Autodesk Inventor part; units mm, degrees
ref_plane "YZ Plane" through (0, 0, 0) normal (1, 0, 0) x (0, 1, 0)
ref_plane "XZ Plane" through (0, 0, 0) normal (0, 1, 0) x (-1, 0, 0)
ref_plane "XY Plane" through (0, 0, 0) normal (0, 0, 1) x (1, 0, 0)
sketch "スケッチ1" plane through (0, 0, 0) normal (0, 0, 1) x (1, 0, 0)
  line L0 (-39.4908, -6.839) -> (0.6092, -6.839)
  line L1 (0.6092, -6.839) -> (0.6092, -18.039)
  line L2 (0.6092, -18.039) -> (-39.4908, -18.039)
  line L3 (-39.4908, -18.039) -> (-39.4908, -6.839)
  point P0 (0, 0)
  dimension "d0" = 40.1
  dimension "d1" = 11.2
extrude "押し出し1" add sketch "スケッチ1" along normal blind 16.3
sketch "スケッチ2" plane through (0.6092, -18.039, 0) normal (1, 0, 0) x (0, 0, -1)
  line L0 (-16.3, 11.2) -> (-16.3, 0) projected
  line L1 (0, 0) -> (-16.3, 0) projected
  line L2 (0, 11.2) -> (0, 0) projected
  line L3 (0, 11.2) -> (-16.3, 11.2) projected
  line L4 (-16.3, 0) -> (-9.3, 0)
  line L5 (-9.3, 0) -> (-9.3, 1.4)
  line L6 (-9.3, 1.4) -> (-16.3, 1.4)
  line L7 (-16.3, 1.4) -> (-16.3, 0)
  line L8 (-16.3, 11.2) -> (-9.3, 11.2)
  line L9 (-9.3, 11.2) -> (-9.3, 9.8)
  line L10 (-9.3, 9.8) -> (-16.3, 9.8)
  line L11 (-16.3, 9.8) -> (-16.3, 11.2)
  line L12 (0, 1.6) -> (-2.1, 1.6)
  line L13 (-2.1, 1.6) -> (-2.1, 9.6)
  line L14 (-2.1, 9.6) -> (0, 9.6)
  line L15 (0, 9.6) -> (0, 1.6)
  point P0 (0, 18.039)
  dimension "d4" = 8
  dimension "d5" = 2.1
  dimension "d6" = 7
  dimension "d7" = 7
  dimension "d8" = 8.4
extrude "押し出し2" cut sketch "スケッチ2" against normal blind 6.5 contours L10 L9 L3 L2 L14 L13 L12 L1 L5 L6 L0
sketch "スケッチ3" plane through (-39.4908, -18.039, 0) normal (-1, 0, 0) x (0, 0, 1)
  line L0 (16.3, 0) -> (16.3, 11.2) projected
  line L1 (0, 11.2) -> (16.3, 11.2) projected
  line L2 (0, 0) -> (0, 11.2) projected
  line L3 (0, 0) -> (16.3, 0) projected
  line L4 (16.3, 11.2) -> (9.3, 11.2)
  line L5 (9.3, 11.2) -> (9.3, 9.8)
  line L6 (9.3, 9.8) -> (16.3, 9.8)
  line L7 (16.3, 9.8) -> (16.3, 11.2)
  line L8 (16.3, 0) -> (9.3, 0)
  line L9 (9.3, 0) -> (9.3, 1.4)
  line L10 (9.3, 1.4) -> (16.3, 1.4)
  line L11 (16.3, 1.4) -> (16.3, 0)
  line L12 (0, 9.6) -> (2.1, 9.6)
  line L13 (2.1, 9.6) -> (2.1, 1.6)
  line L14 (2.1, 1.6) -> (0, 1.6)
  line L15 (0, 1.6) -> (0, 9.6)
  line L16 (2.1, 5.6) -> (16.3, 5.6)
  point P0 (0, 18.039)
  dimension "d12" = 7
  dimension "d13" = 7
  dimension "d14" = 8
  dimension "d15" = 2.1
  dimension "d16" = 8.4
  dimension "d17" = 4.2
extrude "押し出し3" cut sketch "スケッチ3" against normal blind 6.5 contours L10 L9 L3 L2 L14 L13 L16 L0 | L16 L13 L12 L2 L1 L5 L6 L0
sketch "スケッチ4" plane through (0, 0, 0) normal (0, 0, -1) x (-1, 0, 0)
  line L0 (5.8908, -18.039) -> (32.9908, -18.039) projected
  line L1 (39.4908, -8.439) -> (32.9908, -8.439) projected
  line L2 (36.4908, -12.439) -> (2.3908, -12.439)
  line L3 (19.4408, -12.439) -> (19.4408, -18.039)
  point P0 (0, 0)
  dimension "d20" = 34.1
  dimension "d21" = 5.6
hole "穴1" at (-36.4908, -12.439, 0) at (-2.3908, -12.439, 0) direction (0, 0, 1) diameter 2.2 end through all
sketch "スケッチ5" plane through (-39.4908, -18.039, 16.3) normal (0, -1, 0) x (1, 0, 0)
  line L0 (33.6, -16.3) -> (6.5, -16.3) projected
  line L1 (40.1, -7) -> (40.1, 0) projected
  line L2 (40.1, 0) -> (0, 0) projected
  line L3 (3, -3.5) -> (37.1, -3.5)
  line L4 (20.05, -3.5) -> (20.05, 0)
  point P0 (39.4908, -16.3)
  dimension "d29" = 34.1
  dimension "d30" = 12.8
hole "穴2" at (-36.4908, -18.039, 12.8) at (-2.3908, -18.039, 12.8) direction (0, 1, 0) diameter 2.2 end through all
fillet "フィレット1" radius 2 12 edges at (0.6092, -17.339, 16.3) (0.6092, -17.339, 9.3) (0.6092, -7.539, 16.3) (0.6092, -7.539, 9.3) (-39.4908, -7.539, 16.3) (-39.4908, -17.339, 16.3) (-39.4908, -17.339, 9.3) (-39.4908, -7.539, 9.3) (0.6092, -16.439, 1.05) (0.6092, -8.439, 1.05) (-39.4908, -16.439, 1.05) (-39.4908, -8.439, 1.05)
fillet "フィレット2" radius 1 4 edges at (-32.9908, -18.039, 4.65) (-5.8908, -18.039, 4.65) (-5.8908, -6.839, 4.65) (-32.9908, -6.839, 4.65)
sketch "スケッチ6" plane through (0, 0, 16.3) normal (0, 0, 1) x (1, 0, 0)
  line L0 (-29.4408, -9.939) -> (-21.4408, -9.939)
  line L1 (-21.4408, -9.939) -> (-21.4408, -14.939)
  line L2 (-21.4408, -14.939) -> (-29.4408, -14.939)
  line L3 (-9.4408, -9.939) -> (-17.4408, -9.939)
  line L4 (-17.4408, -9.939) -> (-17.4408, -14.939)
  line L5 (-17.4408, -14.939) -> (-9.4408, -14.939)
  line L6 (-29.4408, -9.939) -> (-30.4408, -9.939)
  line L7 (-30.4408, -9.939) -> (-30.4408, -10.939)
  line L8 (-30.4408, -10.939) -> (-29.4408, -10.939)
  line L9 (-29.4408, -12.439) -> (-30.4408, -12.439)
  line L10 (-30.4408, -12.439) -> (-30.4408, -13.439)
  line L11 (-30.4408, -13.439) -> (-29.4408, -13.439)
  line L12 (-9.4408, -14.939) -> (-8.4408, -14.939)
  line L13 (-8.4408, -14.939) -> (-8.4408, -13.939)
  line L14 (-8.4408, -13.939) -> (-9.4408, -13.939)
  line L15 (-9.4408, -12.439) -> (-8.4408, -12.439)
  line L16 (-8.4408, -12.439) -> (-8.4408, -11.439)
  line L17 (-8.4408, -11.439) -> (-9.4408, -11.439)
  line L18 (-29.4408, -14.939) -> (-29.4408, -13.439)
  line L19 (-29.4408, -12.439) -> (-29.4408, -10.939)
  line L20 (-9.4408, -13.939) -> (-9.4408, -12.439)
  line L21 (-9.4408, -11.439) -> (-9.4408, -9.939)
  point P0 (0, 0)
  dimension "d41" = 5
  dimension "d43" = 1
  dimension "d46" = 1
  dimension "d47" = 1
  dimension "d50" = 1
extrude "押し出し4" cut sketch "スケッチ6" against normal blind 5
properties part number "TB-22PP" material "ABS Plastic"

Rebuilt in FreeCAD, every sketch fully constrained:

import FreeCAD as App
import Part
import Sketcher

V = App.Vector
Q = App.Units.Quantity


def edges_at(feature, points):
    """Names of the edges that pass closest to the given points."""
    edges = feature.Shape.Edges
    near = lambda p: min(range(len(edges)), key=lambda i: edges[i].distToShape(Part.Vertex(*p))[0])
    return sorted({f"Edge{near(p) + 1}" for p in points})

doc = App.newDocument("Part")
body = doc.addObject("PartDesign::Body", "Body")

sketch1 = body.newObject("Sketcher::SketchObject", "Sketch")
sketch1.AttachmentSupport = (doc.getObject("XY_Plane"), [""])
sketch1.MapMode = "FlatFace"
sketch1.addGeometry(Part.LineSegment(V(1, -7, 0), V(-39, -7, 0)), False)
sketch1.addGeometry(Part.LineSegment(V(-39, -7, 0), V(-39, -18, 0)), False)
sketch1.addGeometry(Part.LineSegment(V(-39, -18, 0), V(1, -18, 0)), False)
sketch1.addGeometry(Part.LineSegment(V(1, -18, 0), V(1, -7, 0)), False)
sketch1.addConstraint(Sketcher.Constraint("Coincident", 0, 2, 1, 1))
sketch1.addConstraint(Sketcher.Constraint("Coincident", 1, 2, 2, 1))
sketch1.addConstraint(Sketcher.Constraint("Coincident", 2, 2, 3, 1))
sketch1.addConstraint(Sketcher.Constraint("Coincident", 3, 2, 0, 1))
sketch1.addConstraint(Sketcher.Constraint("Horizontal", 0))
sketch1.addConstraint(Sketcher.Constraint("Vertical", 1))
sketch1.addConstraint(Sketcher.Constraint("Horizontal", 2))
sketch1.addConstraint(Sketcher.Constraint("Vertical", 3))
sketch1.addConstraint(Sketcher.Constraint("DistanceX", 0, 2, 0, 1, Q("40.1 mm")))
sketch1.addConstraint(Sketcher.Constraint("DistanceY", 1, 2, 1, 1, Q("11.2 mm")))
sketch1.addConstraint(Sketcher.Constraint("DistanceY", 0, 2, -1, 1, Q("6.839 mm")))
sketch1.addConstraint(Sketcher.Constraint("DistanceX", 0, 2, -1, 1, Q("39.4908 mm")))
pad1 = body.newObject("PartDesign::Pad", "Pad")
pad1.Profile = sketch1
pad1.Length = 16.3

sketch2 = body.newObject("Sketcher::SketchObject", "Sketch001")
sketch2.AttachmentSupport = (doc.getObject("YZ_Plane"), [""])
sketch2.MapMode = "FlatFace"
sketch2.AttachmentOffset = App.Placement(V(0, 0, 0.6092), App.Rotation())
sketch2.addGeometry(Part.LineSegment(V(-8.2, 9.3, 0), V(-8.2, 16.3, 0)), False)
sketch2.addGeometry(Part.LineSegment(V(-8.2, 16.3, 0), V(-16.6, 16.3, 0)), False)
sketch2.addGeometry(Part.LineSegment(V(-16.6, 16.3, 0), V(-16.6, 9.3, 0)), False)
sketch2.addGeometry(Part.LineSegment(V(-16.6, 9.3, 0), V(-18, 9.3, 0)), False)
sketch2.addGeometry(Part.LineSegment(V(-18, 9.3, 0), V(-18, 0, 0)), False)
sketch2.addGeometry(Part.LineSegment(V(-18, 0, 0), V(-16.4, 0, 0)), False)
sketch2.addGeometry(Part.LineSegment(V(-16.4, 0, 0), V(-16.4, 2.1, 0)), False)
sketch2.addGeometry(Part.LineSegment(V(-16.4, 2.1, 0), V(-8.4, 2.1, 0)), False)
sketch2.addGeometry(Part.LineSegment(V(-8.4, 2.1, 0), V(-8.4, 0, 0)), False)
sketch2.addGeometry(Part.LineSegment(V(-8.4, 0, 0), V(-6.8, 0, 0)), False)
sketch2.addGeometry(Part.LineSegment(V(-6.8, 0, 0), V(-6.8, 9.3, 0)), False)
sketch2.addGeometry(Part.LineSegment(V(-6.8, 9.3, 0), V(-8.2, 9.3, 0)), False)
sketch2.addConstraint(Sketcher.Constraint("Coincident", 0, 2, 1, 1))
sketch2.addConstraint(Sketcher.Constraint("Coincident", 1, 2, 2, 1))
sketch2.addConstraint(Sketcher.Constraint("Coincident", 2, 2, 3, 1))
sketch2.addConstraint(Sketcher.Constraint("Coincident", 3, 2, 4, 1))
sketch2.addConstraint(Sketcher.Constraint("Coincident", 4, 2, 5, 1))
sketch2.addConstraint(Sketcher.Constraint("Coincident", 5, 2, 6, 1))
sketch2.addConstraint(Sketcher.Constraint("Coincident", 6, 2, 7, 1))
sketch2.addConstraint(Sketcher.Constraint("Coincident", 7, 2, 8, 1))
sketch2.addConstraint(Sketcher.Constraint("Coincident", 8, 2, 9, 1))
sketch2.addConstraint(Sketcher.Constraint("Coincident", 9, 2, 10, 1))
sketch2.addConstraint(Sketcher.Constraint("Coincident", 10, 2, 11, 1))
sketch2.addConstraint(Sketcher.Constraint("Coincident", 11, 2, 0, 1))
sketch2.addConstraint(Sketcher.Constraint("Vertical", 0))
sketch2.addConstraint(Sketcher.Constraint("Horizontal", 1))
sketch2.addConstraint(Sketcher.Constraint("Vertical", 2))
sketch2.addConstraint(Sketcher.Constraint("Horizontal", 3))
sketch2.addConstraint(Sketcher.Constraint("Vertical", 4))
sketch2.addConstraint(Sketcher.Constraint("Horizontal", 5))
sketch2.addConstraint(Sketcher.Constraint("Vertical", 6))
sketch2.addConstraint(Sketcher.Constraint("Horizontal", 7))
sketch2.addConstraint(Sketcher.Constraint("Vertical", 8))
sketch2.addConstraint(Sketcher.Constraint("Horizontal", 9))
sketch2.addConstraint(Sketcher.Constraint("Vertical", 10))
sketch2.addConstraint(Sketcher.Constraint("Horizontal", 11))
sketch2.addConstraint(Sketcher.Constraint("PointOnObject", 4, 2, -1))
sketch2.addConstraint(Sketcher.Constraint("PointOnObject", 8, 2, -1))
sketch2.addConstraint(Sketcher.Constraint("Horizontal", 3, 2, 10, 2))
sketch2.addConstraint(Sketcher.Constraint("Equal", 5, 9))
sketch2.addConstraint(Sketcher.Constraint("Equal", 3, 11))
sketch2.addConstraint(Sketcher.Constraint("DistanceX", 7, 1, 7, 2, Q("8 mm")))
sketch2.addConstraint(Sketcher.Constraint("DistanceY", 0, 1, 0, 2, Q("7 mm")))
sketch2.addConstraint(Sketcher.Constraint("DistanceX", 1, 2, 1, 1, Q("8.4 mm")))
sketch2.addConstraint(Sketcher.Constraint("DistanceY", 6, 1, 6, 2, Q("2.1 mm")))
sketch2.addConstraint(Sketcher.Constraint("DistanceX", 3, 2, 3, 1, Q("1.4 mm")))
sketch2.addConstraint(Sketcher.Constraint("DistanceY", 4, 2, 4, 1, Q("9.3 mm")))
sketch2.addConstraint(Sketcher.Constraint("DistanceX", 0, 2, -1, 1, Q("8.239 mm")))
pocket1 = body.newObject("PartDesign::Pocket", "Pocket")
pocket1.Profile = sketch2
pocket1.Length = 6.5

sketch3 = body.newObject("Sketcher::SketchObject", "Sketch002")
sketch3.AttachmentSupport = (doc.getObject("YZ_Plane"), [""])
sketch3.MapMode = "FlatFace"
sketch3.AttachmentOffset = App.Placement(V(0, 0, -39.4908), App.Rotation())
sketch3.addGeometry(Part.LineSegment(V(-16.6, 9.3, 0), V(-16.6, 16.3, 0)), False)
sketch3.addGeometry(Part.LineSegment(V(-16.6, 16.3, 0), V(-8.2, 16.3, 0)), False)
sketch3.addGeometry(Part.LineSegment(V(-8.2, 16.3, 0), V(-8.2, 9.3, 0)), False)
sketch3.addGeometry(Part.LineSegment(V(-8.2, 9.3, 0), V(-6.8, 9.3, 0)), False)
sketch3.addGeometry(Part.LineSegment(V(-6.8, 9.3, 0), V(-6.8, 0, 0)), False)
sketch3.addGeometry(Part.LineSegment(V(-6.8, 0, 0), V(-8.4, 0, 0)), False)
sketch3.addGeometry(Part.LineSegment(V(-8.4, 0, 0), V(-8.4, 2.1, 0)), False)
sketch3.addGeometry(Part.LineSegment(V(-8.4, 2.1, 0), V(-16.4, 2.1, 0)), False)
sketch3.addGeometry(Part.LineSegment(V(-16.4, 2.1, 0), V(-16.4, 0, 0)), False)
sketch3.addGeometry(Part.LineSegment(V(-16.4, 0, 0), V(-18, 0, 0)), False)
sketch3.addGeometry(Part.LineSegment(V(-18, 0, 0), V(-18, 9.3, 0)), False)
sketch3.addGeometry(Part.LineSegment(V(-18, 9.3, 0), V(-16.6, 9.3, 0)), False)
sketch3.addConstraint(Sketcher.Constraint("Coincident", 0, 2, 1, 1))
sketch3.addConstraint(Sketcher.Constraint("Coincident", 1, 2, 2, 1))
sketch3.addConstraint(Sketcher.Constraint("Coincident", 2, 2, 3, 1))
sketch3.addConstraint(Sketcher.Constraint("Coincident", 3, 2, 4, 1))
sketch3.addConstraint(Sketcher.Constraint("Coincident", 4, 2, 5, 1))
sketch3.addConstraint(Sketcher.Constraint("Coincident", 5, 2, 6, 1))
sketch3.addConstraint(Sketcher.Constraint("Coincident", 6, 2, 7, 1))
sketch3.addConstraint(Sketcher.Constraint("Coincident", 7, 2, 8, 1))
sketch3.addConstraint(Sketcher.Constraint("Coincident", 8, 2, 9, 1))
sketch3.addConstraint(Sketcher.Constraint("Coincident", 9, 2, 10, 1))
sketch3.addConstraint(Sketcher.Constraint("Coincident", 10, 2, 11, 1))
sketch3.addConstraint(Sketcher.Constraint("Coincident", 11, 2, 0, 1))
sketch3.addConstraint(Sketcher.Constraint("Vertical", 0))
sketch3.addConstraint(Sketcher.Constraint("Horizontal", 1))
sketch3.addConstraint(Sketcher.Constraint("Vertical", 2))
sketch3.addConstraint(Sketcher.Constraint("Horizontal", 3))
sketch3.addConstraint(Sketcher.Constraint("Vertical", 4))
sketch3.addConstraint(Sketcher.Constraint("Horizontal", 5))
sketch3.addConstraint(Sketcher.Constraint("Vertical", 6))
sketch3.addConstraint(Sketcher.Constraint("Horizontal", 7))
sketch3.addConstraint(Sketcher.Constraint("Vertical", 8))
sketch3.addConstraint(Sketcher.Constraint("Horizontal", 9))
sketch3.addConstraint(Sketcher.Constraint("Vertical", 10))
sketch3.addConstraint(Sketcher.Constraint("Horizontal", 11))
sketch3.addConstraint(Sketcher.Constraint("PointOnObject", 4, 2, -1))
sketch3.addConstraint(Sketcher.Constraint("PointOnObject", 8, 2, -1))
sketch3.addConstraint(Sketcher.Constraint("Horizontal", 3, 2, 10, 2))
sketch3.addConstraint(Sketcher.Constraint("Equal", 5, 9))
sketch3.addConstraint(Sketcher.Constraint("Equal", 3, 11))
sketch3.addConstraint(Sketcher.Constraint("DistanceX", 7, 2, 7, 1, Q("8 mm")))
sketch3.addConstraint(Sketcher.Constraint("DistanceY", 0, 1, 0, 2, Q("7 mm")))
sketch3.addConstraint(Sketcher.Constraint("DistanceX", 1, 1, 1, 2, Q("8.4 mm")))
sketch3.addConstraint(Sketcher.Constraint("DistanceY", 6, 1, 6, 2, Q("2.1 mm")))
sketch3.addConstraint(Sketcher.Constraint("DistanceX", 3, 1, 3, 2, Q("1.4 mm")))
sketch3.addConstraint(Sketcher.Constraint("DistanceY", 4, 2, 4, 1, Q("9.3 mm")))
sketch3.addConstraint(Sketcher.Constraint("DistanceX", 0, 2, -1, 1, Q("16.639 mm")))
pocket2 = body.newObject("PartDesign::Pocket", "Pocket001")
pocket2.Profile = sketch3
pocket2.Length = 6.5
pocket2.Reversed = True

sketch4 = body.newObject("Sketcher::SketchObject", "Sketch003")
sketch4.AttachmentSupport = (doc.getObject("XY_Plane"), [""])
sketch4.MapMode = "FlatFace"
sketch4.addGeometry(Part.Circle(V(-36.5, -12.4, 0), V(0, 0, 1), 1.1), False)
sketch4.addGeometry(Part.Circle(V(-2.4, -12.4, 0), V(0, 0, 1), 1.1), False)
sketch4.addConstraint(Sketcher.Constraint("Equal", 0, 1))
sketch4.addConstraint(Sketcher.Constraint("Horizontal", 0, 3, 1, 3))
sketch4.addConstraint(Sketcher.Constraint("Diameter", 0, Q("2.2 mm")))
sketch4.addConstraint(Sketcher.Constraint("DistanceX", 0, 3, 1, 3, Q("34.1 mm")))
sketch4.addConstraint(Sketcher.Constraint("DistanceY", 0, 3, -1, 1, Q("12.439 mm")))
sketch4.addConstraint(Sketcher.Constraint("DistanceX", 0, 3, -1, 1, Q("36.4908 mm")))
doc.recompute()
hole = body.newObject("PartDesign::Hole", "Hole")
hole.Profile = sketch4
hole.ThreadType = "None"
hole.Diameter = 2.2
hole.DepthType = "ThroughAll"
hole.Reversed = True

sketch5 = body.newObject("Sketcher::SketchObject", "Sketch004")
sketch5.AttachmentSupport = (doc.getObject("XZ_Plane"), [""])
sketch5.MapMode = "FlatFace"
sketch5.AttachmentOffset = App.Placement(V(0, 0, 18.039), App.Rotation())
sketch5.addGeometry(Part.Circle(V(-36.5, 12.8, 0), V(0, 0, 1), 1.1), False)
sketch5.addGeometry(Part.Circle(V(-2.4, 12.8, 0), V(0, 0, 1), 1.1), False)
sketch5.addConstraint(Sketcher.Constraint("Equal", 0, 1))
sketch5.addConstraint(Sketcher.Constraint("Horizontal", 0, 3, 1, 3))
sketch5.addConstraint(Sketcher.Constraint("Diameter", 0, Q("2.2 mm")))
sketch5.addConstraint(Sketcher.Constraint("DistanceY", -1, 1, 0, 3, Q("12.8 mm")))
sketch5.addConstraint(Sketcher.Constraint("DistanceX", 0, 3, 1, 3, Q("34.1 mm")))
sketch5.addConstraint(Sketcher.Constraint("DistanceX", 0, 3, -1, 1, Q("36.4908 mm")))
doc.recompute()
hole2 = body.newObject("PartDesign::Hole", "Hole001")
hole2.Profile = sketch5
hole2.ThreadType = "None"
hole2.Diameter = 2.2
hole2.DepthType = "ThroughAll"
doc.recompute()

fillet = body.newObject("PartDesign::Fillet", "Fillet")
fillet.Base = (hole2, edges_at(hole2, [
    (0.609, -17.339, 16.3),
    (0.609, -17.339, 9.3),
    (0.609, -7.539, 16.3),
    (0.609, -7.539, 9.3),
    (-39.491, -7.539, 16.3),
    (-39.491, -17.339, 16.3),
    (-39.491, -17.339, 9.3),
    (-39.491, -7.539, 9.3),
    (0.609, -16.439, 1.05),
    (0.609, -8.439, 1.05),
    (-39.491, -16.439, 1.05),
    (-39.491, -8.439, 1.05),
]))
fillet.Radius = 2
doc.recompute()

fillet2 = body.newObject("PartDesign::Fillet", "Fillet001")
fillet2.Base = (fillet, edges_at(fillet, [
    (-32.991, -18.039, 4.65),
    (-5.891, -18.039, 4.65),
    (-5.891, -6.839, 4.65),
    (-32.991, -6.839, 4.65),
]))
fillet2.Radius = 1

sketch6 = body.newObject("Sketcher::SketchObject", "Sketch005")
sketch6.AttachmentSupport = (doc.getObject("XY_Plane"), [""])
sketch6.MapMode = "FlatFace"
sketch6.AttachmentOffset = App.Placement(V(0, 0, 16.3), App.Rotation())
sketch6.addGeometry(Part.LineSegment(V(-21.4, -9.9, 0), V(-30.4, -9.9, 0)), False)
sketch6.addGeometry(Part.LineSegment(V(-30.4, -9.9, 0), V(-30.4, -10.9, 0)), False)
sketch6.addGeometry(Part.LineSegment(V(-30.4, -10.9, 0), V(-29.4, -10.9, 0)), False)
sketch6.addGeometry(Part.LineSegment(V(-29.4, -10.9, 0), V(-29.4, -12.4, 0)), False)
sketch6.addGeometry(Part.LineSegment(V(-29.4, -12.4, 0), V(-30.4, -12.4, 0)), False)
sketch6.addGeometry(Part.LineSegment(V(-30.4, -12.4, 0), V(-30.4, -13.4, 0)), False)
sketch6.addGeometry(Part.LineSegment(V(-30.4, -13.4, 0), V(-29.4, -13.4, 0)), False)
sketch6.addGeometry(Part.LineSegment(V(-29.4, -13.4, 0), V(-29.4, -14.9, 0)), False)
sketch6.addGeometry(Part.LineSegment(V(-29.4, -14.9, 0), V(-21.4, -14.9, 0)), False)
sketch6.addGeometry(Part.LineSegment(V(-21.4, -14.9, 0), V(-21.4, -9.9, 0)), False)
sketch6.addGeometry(Part.LineSegment(V(-9.4, -11.4, 0), V(-9.4, -9.9, 0)), False)
sketch6.addGeometry(Part.LineSegment(V(-9.4, -9.9, 0), V(-17.4, -9.9, 0)), False)
sketch6.addGeometry(Part.LineSegment(V(-17.4, -9.9, 0), V(-17.4, -14.9, 0)), False)
sketch6.addGeometry(Part.LineSegment(V(-17.4, -14.9, 0), V(-8.4, -14.9, 0)), False)
sketch6.addGeometry(Part.LineSegment(V(-8.4, -14.9, 0), V(-8.4, -13.9, 0)), False)
sketch6.addGeometry(Part.LineSegment(V(-8.4, -13.9, 0), V(-9.4, -13.9, 0)), False)
sketch6.addGeometry(Part.LineSegment(V(-9.4, -13.9, 0), V(-9.4, -12.4, 0)), False)
sketch6.addGeometry(Part.LineSegment(V(-9.4, -12.4, 0), V(-8.4, -12.4, 0)), False)
sketch6.addGeometry(Part.LineSegment(V(-8.4, -12.4, 0), V(-8.4, -11.4, 0)), False)
sketch6.addGeometry(Part.LineSegment(V(-8.4, -11.4, 0), V(-9.4, -11.4, 0)), False)
sketch6.addConstraint(Sketcher.Constraint("Coincident", 0, 2, 1, 1))
sketch6.addConstraint(Sketcher.Constraint("Coincident", 1, 2, 2, 1))
sketch6.addConstraint(Sketcher.Constraint("Coincident", 2, 2, 3, 1))
sketch6.addConstraint(Sketcher.Constraint("Coincident", 3, 2, 4, 1))
sketch6.addConstraint(Sketcher.Constraint("Coincident", 4, 2, 5, 1))
sketch6.addConstraint(Sketcher.Constraint("Coincident", 5, 2, 6, 1))
sketch6.addConstraint(Sketcher.Constraint("Coincident", 6, 2, 7, 1))
sketch6.addConstraint(Sketcher.Constraint("Coincident", 7, 2, 8, 1))
sketch6.addConstraint(Sketcher.Constraint("Coincident", 8, 2, 9, 1))
sketch6.addConstraint(Sketcher.Constraint("Coincident", 9, 2, 0, 1))
sketch6.addConstraint(Sketcher.Constraint("Coincident", 10, 2, 11, 1))
sketch6.addConstraint(Sketcher.Constraint("Coincident", 11, 2, 12, 1))
sketch6.addConstraint(Sketcher.Constraint("Coincident", 12, 2, 13, 1))
sketch6.addConstraint(Sketcher.Constraint("Coincident", 13, 2, 14, 1))
sketch6.addConstraint(Sketcher.Constraint("Coincident", 14, 2, 15, 1))
sketch6.addConstraint(Sketcher.Constraint("Coincident", 15, 2, 16, 1))
sketch6.addConstraint(Sketcher.Constraint("Coincident", 16, 2, 17, 1))
sketch6.addConstraint(Sketcher.Constraint("Coincident", 17, 2, 18, 1))
sketch6.addConstraint(Sketcher.Constraint("Coincident", 18, 2, 19, 1))
sketch6.addConstraint(Sketcher.Constraint("Coincident", 19, 2, 10, 1))
sketch6.addConstraint(Sketcher.Constraint("Horizontal", 0))
sketch6.addConstraint(Sketcher.Constraint("Vertical", 1))
sketch6.addConstraint(Sketcher.Constraint("Horizontal", 2))
sketch6.addConstraint(Sketcher.Constraint("Vertical", 3))
sketch6.addConstraint(Sketcher.Constraint("Horizontal", 4))
sketch6.addConstraint(Sketcher.Constraint("Vertical", 5))
sketch6.addConstraint(Sketcher.Constraint("Horizontal", 6))
sketch6.addConstraint(Sketcher.Constraint("Vertical", 7))
sketch6.addConstraint(Sketcher.Constraint("Horizontal", 8))
sketch6.addConstraint(Sketcher.Constraint("Vertical", 9))
sketch6.addConstraint(Sketcher.Constraint("Vertical", 10))
sketch6.addConstraint(Sketcher.Constraint("Horizontal", 11))
sketch6.addConstraint(Sketcher.Constraint("Vertical", 12))
sketch6.addConstraint(Sketcher.Constraint("Horizontal", 13))
sketch6.addConstraint(Sketcher.Constraint("Vertical", 14))
sketch6.addConstraint(Sketcher.Constraint("Horizontal", 15))
sketch6.addConstraint(Sketcher.Constraint("Vertical", 16))
sketch6.addConstraint(Sketcher.Constraint("Horizontal", 17))
sketch6.addConstraint(Sketcher.Constraint("Vertical", 18))
sketch6.addConstraint(Sketcher.Constraint("Horizontal", 19))
sketch6.addConstraint(Sketcher.Constraint("Horizontal", 9, 2, 10, 2))
sketch6.addConstraint(Sketcher.Constraint("Horizontal", 8, 2, 12, 2))
sketch6.addConstraint(Sketcher.Constraint("Horizontal", 4, 2, 16, 2))
sketch6.addConstraint(Sketcher.Constraint("Vertical", 1, 2, 4, 2))
sketch6.addConstraint(Sketcher.Constraint("Vertical", 3, 2, 6, 2))
sketch6.addConstraint(Sketcher.Constraint("Vertical", 10, 2, 15, 2))
sketch6.addConstraint(Sketcher.Constraint("Vertical", 14, 2, 17, 2))
sketch6.addConstraint(Sketcher.Constraint("Equal", 8, 11))
sketch6.addConstraint(Sketcher.Constraint("Equal", 0, 13))
sketch6.addConstraint(Sketcher.Constraint("Equal", 19, 1))
sketch6.addConstraint(Sketcher.Constraint("Equal", 1, 5))
sketch6.addConstraint(Sketcher.Constraint("Equal", 3, 7))
sketch6.addConstraint(Sketcher.Constraint("Equal", 7, 10))
sketch6.addConstraint(Sketcher.Constraint("Equal", 5, 14))
sketch6.addConstraint(Sketcher.Constraint("DistanceX", 2, 1, 2, 2, Q("1 mm")))
sketch6.addConstraint(Sketcher.Constraint("DistanceY", 9, 1, 9, 2, Q("5 mm")))
sketch6.addConstraint(Sketcher.Constraint("DistanceX", 0, 2, 0, 1, Q("9 mm")))
sketch6.addConstraint(Sketcher.Constraint("DistanceX", 9, 2, 10, 2, Q("12 mm")))
sketch6.addConstraint(Sketcher.Constraint("DistanceY", 0, 2, -1, 1, Q("9.939 mm")))
sketch6.addConstraint(Sketcher.Constraint("DistanceX", 0, 2, -1, 1, Q("30.4408 mm")))
pocket3 = body.newObject("PartDesign::Pocket", "Pocket002")
pocket3.Profile = sketch6
pocket3.Length = 5

doc.recompute()
